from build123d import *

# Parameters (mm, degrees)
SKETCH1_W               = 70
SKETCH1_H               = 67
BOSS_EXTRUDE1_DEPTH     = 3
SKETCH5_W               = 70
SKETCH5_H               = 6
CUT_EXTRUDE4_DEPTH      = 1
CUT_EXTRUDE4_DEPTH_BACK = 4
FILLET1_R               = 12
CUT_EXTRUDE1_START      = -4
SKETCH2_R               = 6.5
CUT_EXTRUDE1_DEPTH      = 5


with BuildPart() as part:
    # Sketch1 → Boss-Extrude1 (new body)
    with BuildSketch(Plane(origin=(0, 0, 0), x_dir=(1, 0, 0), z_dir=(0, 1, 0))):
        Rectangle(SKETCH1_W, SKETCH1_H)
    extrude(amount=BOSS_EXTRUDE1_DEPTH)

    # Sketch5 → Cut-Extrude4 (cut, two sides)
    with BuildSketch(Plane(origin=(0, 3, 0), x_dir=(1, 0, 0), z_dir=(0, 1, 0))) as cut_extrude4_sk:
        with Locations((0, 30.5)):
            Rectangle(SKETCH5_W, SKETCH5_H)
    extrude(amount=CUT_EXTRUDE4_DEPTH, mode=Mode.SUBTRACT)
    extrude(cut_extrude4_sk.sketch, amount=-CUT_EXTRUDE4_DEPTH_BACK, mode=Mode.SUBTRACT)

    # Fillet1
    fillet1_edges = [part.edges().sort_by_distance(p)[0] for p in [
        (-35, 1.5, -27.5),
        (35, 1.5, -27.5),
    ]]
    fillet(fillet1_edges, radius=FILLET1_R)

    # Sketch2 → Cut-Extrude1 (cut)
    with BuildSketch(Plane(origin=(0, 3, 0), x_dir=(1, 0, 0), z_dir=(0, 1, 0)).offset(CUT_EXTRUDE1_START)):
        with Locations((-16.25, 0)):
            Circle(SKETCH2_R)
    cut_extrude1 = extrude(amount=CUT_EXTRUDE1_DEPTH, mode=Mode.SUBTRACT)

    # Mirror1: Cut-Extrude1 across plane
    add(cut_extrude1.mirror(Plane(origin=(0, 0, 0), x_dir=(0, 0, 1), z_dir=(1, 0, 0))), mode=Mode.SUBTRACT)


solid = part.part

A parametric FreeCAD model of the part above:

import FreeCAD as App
import Part
import Sketcher
Q = App.Units.Quantity


def edges_at(feature, points):
    """Names of the edges that pass closest to the given points."""
    edges = feature.Shape.Edges
    near = lambda p: min(range(len(edges)), key=lambda i: edges[i].distToShape(Part.Vertex(*p))[0])
    return sorted({f"Edge{near(p) + 1}" for p in points})

doc = App.newDocument("Part")
body = doc.addObject("PartDesign::Body", "Body")

sketch1 = body.newObject("Sketcher::SketchObject", "Sketch")
sketch1.AttachmentSupport = (doc.getObject("XZ_Plane"), [""])
sketch1.MapMode = "FlatFace"
sketch1.addGeometry(Part.LineSegment(App.Vector(-35, -33.5, 0), App.Vector(-35, 33.5, 0)), False)
sketch1.addGeometry(Part.LineSegment(App.Vector(-35, 33.5, 0), App.Vector(35, 33.5, 0)), False)
sketch1.addGeometry(Part.LineSegment(App.Vector(35, 33.5, 0), App.Vector(35, -33.5, 0)), False)
sketch1.addGeometry(Part.LineSegment(App.Vector(35, -33.5, 0), App.Vector(-35, -33.5, 0)), False)
sketch1.addConstraint(Sketcher.Constraint("Coincident", 0, 2, 1, 1))
sketch1.addConstraint(Sketcher.Constraint("Coincident", 1, 2, 2, 1))
sketch1.addConstraint(Sketcher.Constraint("Coincident", 2, 2, 3, 1))
sketch1.addConstraint(Sketcher.Constraint("Coincident", 3, 2, 0, 1))
sketch1.addConstraint(Sketcher.Constraint("Vertical", 0))
sketch1.addConstraint(Sketcher.Constraint("Horizontal", 1))
sketch1.addConstraint(Sketcher.Constraint("Vertical", 2))
sketch1.addConstraint(Sketcher.Constraint("Horizontal", 3))
sketch1.addConstraint(Sketcher.Constraint("Symmetric", 0, 2, 2, 2, -1, 1))
sketch1.addConstraint(Sketcher.Constraint("DistanceX", 1, 1, 1, 2, Q("70 mm")))
sketch1.addConstraint(Sketcher.Constraint("DistanceY", 0, 1, 0, 2, Q("67 mm")))
pad1 = body.newObject("PartDesign::Pad", "Pad")
pad1.Profile = sketch1
pad1.Length = 3
pad1.Reversed = True

sketch2 = body.newObject("Sketcher::SketchObject", "Sketch001")
sketch2.AttachmentSupport = (doc.getObject("XZ_Plane"), [""])
sketch2.MapMode = "FlatFace"
sketch2.AttachmentOffset = App.Placement(App.Vector(0, 0, -3), App.Rotation())
sketch2.addGeometry(Part.LineSegment(App.Vector(-35, -33.5, 0), App.Vector(-35, -27.5, 0)), False)
sketch2.addGeometry(Part.LineSegment(App.Vector(-35, -27.5, 0), App.Vector(35, -27.5, 0)), False)
sketch2.addGeometry(Part.LineSegment(App.Vector(35, -27.5, 0), App.Vector(35, -33.5, 0)), False)
sketch2.addGeometry(Part.LineSegment(App.Vector(35, -33.5, 0), App.Vector(-35, -33.5, 0)), False)
sketch2.addConstraint(Sketcher.Constraint("Coincident", 0, 2, 1, 1))
sketch2.addConstraint(Sketcher.Constraint("Coincident", 1, 2, 2, 1))
sketch2.addConstraint(Sketcher.Constraint("Coincident", 2, 2, 3, 1))
sketch2.addConstraint(Sketcher.Constraint("Coincident", 3, 2, 0, 1))
sketch2.addConstraint(Sketcher.Constraint("Vertical", 0))
sketch2.addConstraint(Sketcher.Constraint("Horizontal", 1))
sketch2.addConstraint(Sketcher.Constraint("Vertical", 2))
sketch2.addConstraint(Sketcher.Constraint("Horizontal", 3))
sketch2.addConstraint(Sketcher.Constraint("DistanceX", 1, 1, 1, 2, Q("70 mm")))
sketch2.addConstraint(Sketcher.Constraint("DistanceY", 0, 1, 0, 2, Q("6 mm")))
sketch2.addConstraint(Sketcher.Constraint("DistanceX", 0, 2, -1, 1, Q("35 mm")))
sketch2.addConstraint(Sketcher.Constraint("DistanceY", 0, 2, -1, 1, Q("27.5 mm")))
pocket1 = body.newObject("PartDesign::Pocket", "Pocket")
pocket1.Profile = sketch2
pocket1.Type = "ThroughAll"
pocket1.Midplane = True
doc.recompute()

fillet = body.newObject("PartDesign::Fillet", "Fillet")
fillet.Base = (pocket1, edges_at(pocket1, [(-35, 1.5, -27.5), (35, 1.5, -27.5)]))
fillet.Radius = 12

sketch3 = body.newObject("Sketcher::SketchObject", "Sketch002")
sketch3.AttachmentSupport = (doc.getObject("XZ_Plane"), [""])
sketch3.MapMode = "FlatFace"
sketch3.AttachmentOffset = App.Placement(App.Vector(0, 0, 1), App.Rotation())
sketch3.addGeometry(Part.Circle(App.Vector(-16.25, 0, 0), App.Vector(0, 0, 1), 6.5), False)
sketch3.addConstraint(Sketcher.Constraint("PointOnObject", 0, 3, -1))
sketch3.addConstraint(Sketcher.Constraint("Diameter", 0, Q("13 mm")))
sketch3.addConstraint(Sketcher.Constraint("DistanceX", 0, 3, -1, 1, Q("16.25 mm")))
pocket2 = body.newObject("PartDesign::Pocket", "Pocket001")
pocket2.Profile = sketch3
pocket2.Length = 5
doc.recompute()

mirrored = body.newObject("PartDesign::Mirrored", "Mirrored")
mirrored.Originals = [pocket2]
mirrored.MirrorPlane = (doc.getObject("YZ_Plane"), [""])
body.Tip = mirrored

doc.recompute()
